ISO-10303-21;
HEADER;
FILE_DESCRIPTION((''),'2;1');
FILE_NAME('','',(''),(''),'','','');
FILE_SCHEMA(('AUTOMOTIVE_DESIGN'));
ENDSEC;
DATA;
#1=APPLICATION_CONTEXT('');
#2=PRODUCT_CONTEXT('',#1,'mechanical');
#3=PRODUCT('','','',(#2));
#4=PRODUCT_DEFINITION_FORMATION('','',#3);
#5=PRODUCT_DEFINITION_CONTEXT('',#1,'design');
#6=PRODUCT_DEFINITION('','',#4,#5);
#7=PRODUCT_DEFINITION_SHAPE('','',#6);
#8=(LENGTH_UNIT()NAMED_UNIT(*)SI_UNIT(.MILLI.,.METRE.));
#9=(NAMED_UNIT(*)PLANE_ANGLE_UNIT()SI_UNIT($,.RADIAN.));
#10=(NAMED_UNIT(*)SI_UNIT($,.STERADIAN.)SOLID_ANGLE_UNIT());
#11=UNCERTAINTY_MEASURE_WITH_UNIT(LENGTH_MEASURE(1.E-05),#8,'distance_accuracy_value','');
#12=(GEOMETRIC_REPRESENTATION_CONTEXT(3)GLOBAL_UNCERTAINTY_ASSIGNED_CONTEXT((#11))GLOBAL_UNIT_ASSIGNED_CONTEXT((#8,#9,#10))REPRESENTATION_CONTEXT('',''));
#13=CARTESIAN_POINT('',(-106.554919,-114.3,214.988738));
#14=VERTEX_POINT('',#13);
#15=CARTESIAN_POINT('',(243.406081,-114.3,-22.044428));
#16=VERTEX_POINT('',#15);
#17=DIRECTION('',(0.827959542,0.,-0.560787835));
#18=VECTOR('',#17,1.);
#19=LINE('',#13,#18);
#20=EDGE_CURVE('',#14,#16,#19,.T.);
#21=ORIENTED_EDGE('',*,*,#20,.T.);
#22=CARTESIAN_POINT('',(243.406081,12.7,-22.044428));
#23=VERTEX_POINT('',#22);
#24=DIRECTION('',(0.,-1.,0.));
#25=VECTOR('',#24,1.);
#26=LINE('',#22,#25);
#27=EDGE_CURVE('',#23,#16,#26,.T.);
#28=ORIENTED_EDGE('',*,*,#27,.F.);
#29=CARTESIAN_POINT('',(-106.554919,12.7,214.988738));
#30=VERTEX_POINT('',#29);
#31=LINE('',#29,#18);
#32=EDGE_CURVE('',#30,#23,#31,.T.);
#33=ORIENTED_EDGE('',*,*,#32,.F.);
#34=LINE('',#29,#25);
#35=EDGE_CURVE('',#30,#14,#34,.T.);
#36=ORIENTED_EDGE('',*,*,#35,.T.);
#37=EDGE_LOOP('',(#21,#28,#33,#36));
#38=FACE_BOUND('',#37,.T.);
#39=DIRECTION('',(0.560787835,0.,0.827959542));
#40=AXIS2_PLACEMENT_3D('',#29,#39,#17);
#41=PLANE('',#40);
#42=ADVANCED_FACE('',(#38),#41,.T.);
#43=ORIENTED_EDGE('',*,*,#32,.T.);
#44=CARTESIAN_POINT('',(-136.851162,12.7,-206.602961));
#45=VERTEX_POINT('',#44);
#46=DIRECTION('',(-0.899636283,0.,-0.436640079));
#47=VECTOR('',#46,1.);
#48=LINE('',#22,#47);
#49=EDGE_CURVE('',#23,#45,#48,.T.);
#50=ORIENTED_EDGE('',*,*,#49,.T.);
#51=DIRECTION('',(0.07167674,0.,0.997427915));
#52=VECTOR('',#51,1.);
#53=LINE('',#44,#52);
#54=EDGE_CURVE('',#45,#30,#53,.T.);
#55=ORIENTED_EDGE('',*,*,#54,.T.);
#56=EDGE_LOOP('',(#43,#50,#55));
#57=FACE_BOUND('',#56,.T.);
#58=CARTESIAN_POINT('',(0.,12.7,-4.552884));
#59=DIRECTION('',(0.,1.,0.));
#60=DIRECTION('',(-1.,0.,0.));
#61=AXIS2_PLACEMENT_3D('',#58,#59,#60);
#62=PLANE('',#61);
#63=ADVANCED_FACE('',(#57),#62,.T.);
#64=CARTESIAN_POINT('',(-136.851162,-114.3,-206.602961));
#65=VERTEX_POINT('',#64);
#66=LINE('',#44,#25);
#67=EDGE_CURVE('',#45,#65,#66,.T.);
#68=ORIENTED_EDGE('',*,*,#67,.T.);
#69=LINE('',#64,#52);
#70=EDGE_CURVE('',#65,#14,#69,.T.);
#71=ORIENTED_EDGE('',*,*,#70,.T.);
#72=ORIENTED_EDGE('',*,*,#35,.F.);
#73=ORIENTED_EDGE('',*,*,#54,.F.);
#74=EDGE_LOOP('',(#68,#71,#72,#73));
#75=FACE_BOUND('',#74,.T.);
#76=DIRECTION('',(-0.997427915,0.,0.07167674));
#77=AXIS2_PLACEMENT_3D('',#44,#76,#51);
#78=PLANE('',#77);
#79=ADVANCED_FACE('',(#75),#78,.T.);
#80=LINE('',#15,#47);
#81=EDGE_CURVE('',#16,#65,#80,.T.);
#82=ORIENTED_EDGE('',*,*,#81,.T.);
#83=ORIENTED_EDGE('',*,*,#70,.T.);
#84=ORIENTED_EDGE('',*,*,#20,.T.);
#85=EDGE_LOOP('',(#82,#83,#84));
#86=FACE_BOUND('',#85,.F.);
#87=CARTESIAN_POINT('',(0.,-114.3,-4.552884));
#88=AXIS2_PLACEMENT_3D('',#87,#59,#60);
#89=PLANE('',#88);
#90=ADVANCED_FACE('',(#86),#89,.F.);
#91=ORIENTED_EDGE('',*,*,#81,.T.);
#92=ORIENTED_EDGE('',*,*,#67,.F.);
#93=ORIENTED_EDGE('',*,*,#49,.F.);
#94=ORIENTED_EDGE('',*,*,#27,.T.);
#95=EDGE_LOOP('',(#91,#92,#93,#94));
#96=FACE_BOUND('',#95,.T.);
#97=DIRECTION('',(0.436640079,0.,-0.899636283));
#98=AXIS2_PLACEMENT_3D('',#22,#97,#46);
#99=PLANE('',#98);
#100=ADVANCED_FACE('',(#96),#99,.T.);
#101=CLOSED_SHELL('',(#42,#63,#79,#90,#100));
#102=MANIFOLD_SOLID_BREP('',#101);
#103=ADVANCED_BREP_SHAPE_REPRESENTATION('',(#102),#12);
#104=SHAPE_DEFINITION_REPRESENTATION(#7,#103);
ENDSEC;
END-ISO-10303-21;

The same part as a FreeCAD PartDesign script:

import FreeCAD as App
import Part
import Sketcher
from FreeCAD import Vector
Q = App.Units.Quantity


def add_polygon(sketch, points):
    """Adds a closed chain of lines whose ends are joined by coincident constraints."""
    first, n = sketch.GeometryCount, len(points)
    for a, b in zip(points, points[1:] + points[:1]):
        sketch.addGeometry(Part.LineSegment(App.Vector(*a, 0), App.Vector(*b, 0)), False)
    for i in range(n):
        sketch.addConstraint(Sketcher.Constraint("Coincident", first + i, 2, first + (i + 1) % n, 1))

doc = App.newDocument("Part")
body = doc.addObject("PartDesign::Body", "Body")

# Sketch on XZ plane
sketch1 = body.newObject("Sketcher::SketchObject", "Sketch")
sketch1.AttachmentSupport = (doc.getObject("XZ_Plane"), [""])
sketch1.MapMode = "FlatFace"
add_polygon(sketch1, [(20.372863, 87.034216), (-55.343817, 70.193092), (-89.385475, 0.495138), (-56.118047, -69.575665), (19.407415, -87.254573), (80.318698, -39.229008), (80.748362, 38.3368)])  # lines 0-6
add_polygon(sketch1, [(-29.119931, -46.517816), (-54.525073, -6.236505), (-38.871723, 38.741022), (6.052828, 54.545768), (46.419475, 29.276439), (51.831311, -18.038646), (18.213113, -51.770263)])  # lines 7-13
sketch1.addConstraint([
    Sketcher.Constraint("DistanceY", 2, 2, 12, 2, Q("0.7010001 in")),
    Sketcher.Constraint("Distance", 1, 77.566999),
    Sketcher.Constraint("Distance", 2, 77.566998),
    Sketcher.Constraint("Distance", 3, 77.566998),
    Sketcher.Constraint("Distance", 4, 77.566999),
    Sketcher.Constraint("Distance", 5, 77.566998),
    Sketcher.Constraint("Distance", 6, 77.566998),
    Sketcher.Constraint("DistanceY", -1, 1, 5, 2, 38.3368),
    Sketcher.Constraint("DistanceY", 4, 2, 0, 2, 109.4221),
    Sketcher.Constraint("DistanceX", 6, 2, 5, 2, 60.375499),
    Sketcher.Constraint("DistanceX", 7, 2, 9, 2, 60.577901),
    Sketcher.Constraint("DistanceX", 8, 2, 10, 2, 85.291198),
    Sketcher.Constraint("DistanceY", 12, 2, 10, 2, 81.046702),
    Sketcher.Constraint("Distance", 7, 47.623579),
    Sketcher.Constraint("Distance", 8, 47.623579),
    Sketcher.Constraint("Distance", 9, 47.623579),
    Sketcher.Constraint("Distance", 11, 47.623579),
    Sketcher.Constraint("Distance", 12, 47.623578),
    Sketcher.Constraint("Distance", 13, 47.623579),
    Sketcher.Constraint("DistanceY", -1, 1, 0, 2, 70.193092),
    Sketcher.Constraint("DistanceX", -1, 1, 5, 2, 80.748362),
    Sketcher.Constraint("DistanceY", -1, 1, 9, 2, 54.545768),
    Sketcher.Constraint("DistanceY", -1, 1, 10, 2, 29.276439),
    Sketcher.Constraint("DistanceX", -1, 1, 11, 2, 51.831311),
    Sketcher.Constraint("DistanceX", 13, 2, -1, 1, 29.119931),
    Sketcher.Constraint("DistanceX", 1, 2, 2, 2, 33.267428),
    Sketcher.Constraint("DistanceX", 1, 2, 3, 2, 108.79289),
    Sketcher.Constraint("DistanceY", 2, 2, 7, 2, 63.33916),
])
pad1 = body.newObject("PartDesign::Pad", "Pad")
pad1.Profile = sketch1
pad1.Length = Q("1 in")
pad1.Midplane = True

# Sketch on XZ plane
sketch2 = body.newObject("Sketcher::SketchObject", "Sketch001")
sketch2.AttachmentSupport = (doc.getObject("XZ_Plane"), [""])
sketch2.MapMode = "FlatFace"
sketch2.AttachmentOffset = App.Placement(Vector(0, 0, -0.5 * 25.4), App.Rotation())
add_polygon(sketch2, [(243.406081, -22.044428), (-136.851162, -206.602961), (-106.554919, 214.988738)])  # lines 0-2
sketch2.addConstraint([
    Sketcher.Constraint("Equal", 0, 1),
    Sketcher.Constraint("Equal", 1, 2),
    Sketcher.Constraint("Distance", 0, Q("16.6409002 in")),
    Sketcher.Constraint("DistanceY", 0, 2, 1, 2, 421.591699),
    Sketcher.Constraint("DistanceX", 0, 2, -1, 1, 136.851162),
    Sketcher.Constraint("DistanceY", 0, 2, -1, 1, 206.602961),
])
pad2 = body.newObject("PartDesign::Pad", "Pad001")
pad2.Profile = sketch2
pad2.Length = Q("5 in")

doc.recompute()
